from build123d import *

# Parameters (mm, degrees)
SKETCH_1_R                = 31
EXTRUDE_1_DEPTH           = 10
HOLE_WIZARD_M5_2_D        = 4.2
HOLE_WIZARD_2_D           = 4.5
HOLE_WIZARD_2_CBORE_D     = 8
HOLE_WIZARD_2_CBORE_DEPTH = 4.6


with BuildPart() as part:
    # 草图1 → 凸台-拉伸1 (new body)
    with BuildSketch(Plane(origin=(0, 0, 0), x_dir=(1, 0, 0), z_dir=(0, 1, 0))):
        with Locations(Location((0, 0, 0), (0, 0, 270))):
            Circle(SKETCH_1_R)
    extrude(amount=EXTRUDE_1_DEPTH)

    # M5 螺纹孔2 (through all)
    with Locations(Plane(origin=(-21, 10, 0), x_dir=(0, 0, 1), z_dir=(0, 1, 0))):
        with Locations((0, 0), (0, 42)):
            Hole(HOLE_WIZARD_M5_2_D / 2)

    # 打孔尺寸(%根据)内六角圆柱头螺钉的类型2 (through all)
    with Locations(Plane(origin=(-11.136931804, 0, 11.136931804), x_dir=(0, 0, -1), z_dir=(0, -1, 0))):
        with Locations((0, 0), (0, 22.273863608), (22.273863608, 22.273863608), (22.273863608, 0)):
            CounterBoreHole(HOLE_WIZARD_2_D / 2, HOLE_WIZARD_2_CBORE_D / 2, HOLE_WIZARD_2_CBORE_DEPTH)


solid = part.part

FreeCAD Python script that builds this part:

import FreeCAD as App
import Part
import Sketcher
from FreeCAD import Vector

doc = App.newDocument("Part")
params = doc.addObject("Spreadsheet::Sheet", "Params")
for row, (alias, value) in enumerate([
    ("sketch1_diameter", "62 mm"),
    ("pad1_length", "10 mm"),
    ("sketch2_diameter", "4.2 mm"),
    ("hole_diameter", "4.2 mm"),
    ("sketch3_diameter", "4.5 mm"),
    ("hole2_diameter", "4.5 mm"),
    ("hole2_cbore_diameter", "8 mm"),
    ("hole2_cbore_depth", "4.6 mm"),
], start=1):
    params.set(f"A{row}", alias)
    params.set(f"B{row}", "=" + value)
    params.setAlias(f"B{row}", alias)

body = doc.addObject("PartDesign::Body", "Body")

# Sketch on XZ plane
sketch1 = body.newObject("Sketcher::SketchObject", "Sketch")
sketch1.AttachmentSupport = (doc.getObject("XZ_Plane"), [""])
sketch1.MapMode = "FlatFace"
sketch1.addGeometry(Part.Circle(Vector(0, 0, 0), Vector(0, 0, 1), 31), False)
sketch1.addConstraint(Sketcher.Constraint("Coincident", 0, 3, -1, 1))
sketch1.addConstraint(Sketcher.Constraint("Diameter", 0, 62.0))
sketch1.setExpression("Constraints[1]", "Params.sketch1_diameter")
pad1 = body.newObject("PartDesign::Pad", "Pad")
pad1.Profile = sketch1
pad1.setExpression("Length", "Params.pad1_length")
pad1.Reversed = True

# Sketch on XZ plane
sketch2 = body.newObject("Sketcher::SketchObject", "Sketch001")
sketch2.AttachmentSupport = (doc.getObject("XZ_Plane"), [""])
sketch2.MapMode = "FlatFace"
sketch2.AttachmentOffset = App.Placement(Vector(0, 0, -10), App.Rotation())
sketch2.addGeometry(Part.Circle(Vector(-21, 0, 0), Vector(0, 0, 1), 2.1), False)
sketch2.addGeometry(Part.Circle(Vector(21, 0, 0), Vector(0, 0, 1), 2.1), False)
sketch2.addConstraint(Sketcher.Constraint("Equal", 0, 1))
sketch2.addConstraint(Sketcher.Constraint("Symmetric", 0, 3, 1, 3, -1, 1))
sketch2.addConstraint(Sketcher.Constraint("PointOnObject", 0, 3, -1))
sketch2.addConstraint(Sketcher.Constraint("Diameter", 0, 4.2))
sketch2.addConstraint(Sketcher.Constraint("DistanceX", 0, 3, -1, 1, 21.0))
sketch2.setExpression("Constraints[3]", "Params.sketch2_diameter")
doc.recompute()
hole = body.newObject("PartDesign::Hole", "Hole")
hole.Profile = sketch2
hole.ThreadType = "None"
hole.setExpression("Diameter", "Params.hole_diameter")
hole.DepthType = "ThroughAll"
hole.Reversed = True

# Sketch on XZ plane
sketch3 = body.newObject("Sketcher::SketchObject", "Sketch002")
sketch3.AttachmentSupport = (doc.getObject("XZ_Plane"), [""])
sketch3.MapMode = "FlatFace"
sketch3.addGeometry(Part.Circle(Vector(-11.1, 11.1, 0), Vector(0, 0, 1), 2.2), False)
sketch3.addGeometry(Part.Circle(Vector(11.1, 11.1, 0), Vector(0, 0, 1), 2.2), False)
sketch3.addGeometry(Part.Circle(Vector(11.1, -11.1, 0), Vector(0, 0, 1), 2.2), False)
sketch3.addGeometry(Part.Circle(Vector(-11.1, -11.1, 0), Vector(0, 0, 1), 2.2), False)
sketch3.addConstraint(Sketcher.Constraint("Equal", 0, 1))
sketch3.addConstraint(Sketcher.Constraint("Equal", 1, 2))
sketch3.addConstraint(Sketcher.Constraint("Equal", 2, 3))
sketch3.addConstraint(Sketcher.Constraint("Symmetric", 0, 3, 2, 3, -1, 1))
sketch3.addConstraint(Sketcher.Constraint("Symmetric", 1, 3, 3, 3, -1, 1))
sketch3.addConstraint(Sketcher.Constraint("Symmetric", 0, 3, 1, 3, -2))
sketch3.addConstraint(Sketcher.Constraint("Diameter", 0, 4.5))
sketch3.addConstraint(Sketcher.Constraint("DistanceX", 0, 3, -1, 1, 11.136932))
sketch3.addConstraint(Sketcher.Constraint("DistanceY", -1, 1, 0, 3, 11.136932))
sketch3.setExpression("Constraints[6]", "Params.sketch3_diameter")
doc.recompute()
hole2 = body.newObject("PartDesign::Hole", "Hole001")
hole2.Profile = sketch3
hole2.ThreadType = "None"
hole2.setExpression("Diameter", "Params.hole2_diameter")
hole2.DepthType = "ThroughAll"
hole2.HoleCutType = "Counterbore"
hole2.setExpression("HoleCutDiameter", "Params.hole2_cbore_diameter")
hole2.setExpression("HoleCutDepth", "Params.hole2_cbore_depth")

doc.recompute()
